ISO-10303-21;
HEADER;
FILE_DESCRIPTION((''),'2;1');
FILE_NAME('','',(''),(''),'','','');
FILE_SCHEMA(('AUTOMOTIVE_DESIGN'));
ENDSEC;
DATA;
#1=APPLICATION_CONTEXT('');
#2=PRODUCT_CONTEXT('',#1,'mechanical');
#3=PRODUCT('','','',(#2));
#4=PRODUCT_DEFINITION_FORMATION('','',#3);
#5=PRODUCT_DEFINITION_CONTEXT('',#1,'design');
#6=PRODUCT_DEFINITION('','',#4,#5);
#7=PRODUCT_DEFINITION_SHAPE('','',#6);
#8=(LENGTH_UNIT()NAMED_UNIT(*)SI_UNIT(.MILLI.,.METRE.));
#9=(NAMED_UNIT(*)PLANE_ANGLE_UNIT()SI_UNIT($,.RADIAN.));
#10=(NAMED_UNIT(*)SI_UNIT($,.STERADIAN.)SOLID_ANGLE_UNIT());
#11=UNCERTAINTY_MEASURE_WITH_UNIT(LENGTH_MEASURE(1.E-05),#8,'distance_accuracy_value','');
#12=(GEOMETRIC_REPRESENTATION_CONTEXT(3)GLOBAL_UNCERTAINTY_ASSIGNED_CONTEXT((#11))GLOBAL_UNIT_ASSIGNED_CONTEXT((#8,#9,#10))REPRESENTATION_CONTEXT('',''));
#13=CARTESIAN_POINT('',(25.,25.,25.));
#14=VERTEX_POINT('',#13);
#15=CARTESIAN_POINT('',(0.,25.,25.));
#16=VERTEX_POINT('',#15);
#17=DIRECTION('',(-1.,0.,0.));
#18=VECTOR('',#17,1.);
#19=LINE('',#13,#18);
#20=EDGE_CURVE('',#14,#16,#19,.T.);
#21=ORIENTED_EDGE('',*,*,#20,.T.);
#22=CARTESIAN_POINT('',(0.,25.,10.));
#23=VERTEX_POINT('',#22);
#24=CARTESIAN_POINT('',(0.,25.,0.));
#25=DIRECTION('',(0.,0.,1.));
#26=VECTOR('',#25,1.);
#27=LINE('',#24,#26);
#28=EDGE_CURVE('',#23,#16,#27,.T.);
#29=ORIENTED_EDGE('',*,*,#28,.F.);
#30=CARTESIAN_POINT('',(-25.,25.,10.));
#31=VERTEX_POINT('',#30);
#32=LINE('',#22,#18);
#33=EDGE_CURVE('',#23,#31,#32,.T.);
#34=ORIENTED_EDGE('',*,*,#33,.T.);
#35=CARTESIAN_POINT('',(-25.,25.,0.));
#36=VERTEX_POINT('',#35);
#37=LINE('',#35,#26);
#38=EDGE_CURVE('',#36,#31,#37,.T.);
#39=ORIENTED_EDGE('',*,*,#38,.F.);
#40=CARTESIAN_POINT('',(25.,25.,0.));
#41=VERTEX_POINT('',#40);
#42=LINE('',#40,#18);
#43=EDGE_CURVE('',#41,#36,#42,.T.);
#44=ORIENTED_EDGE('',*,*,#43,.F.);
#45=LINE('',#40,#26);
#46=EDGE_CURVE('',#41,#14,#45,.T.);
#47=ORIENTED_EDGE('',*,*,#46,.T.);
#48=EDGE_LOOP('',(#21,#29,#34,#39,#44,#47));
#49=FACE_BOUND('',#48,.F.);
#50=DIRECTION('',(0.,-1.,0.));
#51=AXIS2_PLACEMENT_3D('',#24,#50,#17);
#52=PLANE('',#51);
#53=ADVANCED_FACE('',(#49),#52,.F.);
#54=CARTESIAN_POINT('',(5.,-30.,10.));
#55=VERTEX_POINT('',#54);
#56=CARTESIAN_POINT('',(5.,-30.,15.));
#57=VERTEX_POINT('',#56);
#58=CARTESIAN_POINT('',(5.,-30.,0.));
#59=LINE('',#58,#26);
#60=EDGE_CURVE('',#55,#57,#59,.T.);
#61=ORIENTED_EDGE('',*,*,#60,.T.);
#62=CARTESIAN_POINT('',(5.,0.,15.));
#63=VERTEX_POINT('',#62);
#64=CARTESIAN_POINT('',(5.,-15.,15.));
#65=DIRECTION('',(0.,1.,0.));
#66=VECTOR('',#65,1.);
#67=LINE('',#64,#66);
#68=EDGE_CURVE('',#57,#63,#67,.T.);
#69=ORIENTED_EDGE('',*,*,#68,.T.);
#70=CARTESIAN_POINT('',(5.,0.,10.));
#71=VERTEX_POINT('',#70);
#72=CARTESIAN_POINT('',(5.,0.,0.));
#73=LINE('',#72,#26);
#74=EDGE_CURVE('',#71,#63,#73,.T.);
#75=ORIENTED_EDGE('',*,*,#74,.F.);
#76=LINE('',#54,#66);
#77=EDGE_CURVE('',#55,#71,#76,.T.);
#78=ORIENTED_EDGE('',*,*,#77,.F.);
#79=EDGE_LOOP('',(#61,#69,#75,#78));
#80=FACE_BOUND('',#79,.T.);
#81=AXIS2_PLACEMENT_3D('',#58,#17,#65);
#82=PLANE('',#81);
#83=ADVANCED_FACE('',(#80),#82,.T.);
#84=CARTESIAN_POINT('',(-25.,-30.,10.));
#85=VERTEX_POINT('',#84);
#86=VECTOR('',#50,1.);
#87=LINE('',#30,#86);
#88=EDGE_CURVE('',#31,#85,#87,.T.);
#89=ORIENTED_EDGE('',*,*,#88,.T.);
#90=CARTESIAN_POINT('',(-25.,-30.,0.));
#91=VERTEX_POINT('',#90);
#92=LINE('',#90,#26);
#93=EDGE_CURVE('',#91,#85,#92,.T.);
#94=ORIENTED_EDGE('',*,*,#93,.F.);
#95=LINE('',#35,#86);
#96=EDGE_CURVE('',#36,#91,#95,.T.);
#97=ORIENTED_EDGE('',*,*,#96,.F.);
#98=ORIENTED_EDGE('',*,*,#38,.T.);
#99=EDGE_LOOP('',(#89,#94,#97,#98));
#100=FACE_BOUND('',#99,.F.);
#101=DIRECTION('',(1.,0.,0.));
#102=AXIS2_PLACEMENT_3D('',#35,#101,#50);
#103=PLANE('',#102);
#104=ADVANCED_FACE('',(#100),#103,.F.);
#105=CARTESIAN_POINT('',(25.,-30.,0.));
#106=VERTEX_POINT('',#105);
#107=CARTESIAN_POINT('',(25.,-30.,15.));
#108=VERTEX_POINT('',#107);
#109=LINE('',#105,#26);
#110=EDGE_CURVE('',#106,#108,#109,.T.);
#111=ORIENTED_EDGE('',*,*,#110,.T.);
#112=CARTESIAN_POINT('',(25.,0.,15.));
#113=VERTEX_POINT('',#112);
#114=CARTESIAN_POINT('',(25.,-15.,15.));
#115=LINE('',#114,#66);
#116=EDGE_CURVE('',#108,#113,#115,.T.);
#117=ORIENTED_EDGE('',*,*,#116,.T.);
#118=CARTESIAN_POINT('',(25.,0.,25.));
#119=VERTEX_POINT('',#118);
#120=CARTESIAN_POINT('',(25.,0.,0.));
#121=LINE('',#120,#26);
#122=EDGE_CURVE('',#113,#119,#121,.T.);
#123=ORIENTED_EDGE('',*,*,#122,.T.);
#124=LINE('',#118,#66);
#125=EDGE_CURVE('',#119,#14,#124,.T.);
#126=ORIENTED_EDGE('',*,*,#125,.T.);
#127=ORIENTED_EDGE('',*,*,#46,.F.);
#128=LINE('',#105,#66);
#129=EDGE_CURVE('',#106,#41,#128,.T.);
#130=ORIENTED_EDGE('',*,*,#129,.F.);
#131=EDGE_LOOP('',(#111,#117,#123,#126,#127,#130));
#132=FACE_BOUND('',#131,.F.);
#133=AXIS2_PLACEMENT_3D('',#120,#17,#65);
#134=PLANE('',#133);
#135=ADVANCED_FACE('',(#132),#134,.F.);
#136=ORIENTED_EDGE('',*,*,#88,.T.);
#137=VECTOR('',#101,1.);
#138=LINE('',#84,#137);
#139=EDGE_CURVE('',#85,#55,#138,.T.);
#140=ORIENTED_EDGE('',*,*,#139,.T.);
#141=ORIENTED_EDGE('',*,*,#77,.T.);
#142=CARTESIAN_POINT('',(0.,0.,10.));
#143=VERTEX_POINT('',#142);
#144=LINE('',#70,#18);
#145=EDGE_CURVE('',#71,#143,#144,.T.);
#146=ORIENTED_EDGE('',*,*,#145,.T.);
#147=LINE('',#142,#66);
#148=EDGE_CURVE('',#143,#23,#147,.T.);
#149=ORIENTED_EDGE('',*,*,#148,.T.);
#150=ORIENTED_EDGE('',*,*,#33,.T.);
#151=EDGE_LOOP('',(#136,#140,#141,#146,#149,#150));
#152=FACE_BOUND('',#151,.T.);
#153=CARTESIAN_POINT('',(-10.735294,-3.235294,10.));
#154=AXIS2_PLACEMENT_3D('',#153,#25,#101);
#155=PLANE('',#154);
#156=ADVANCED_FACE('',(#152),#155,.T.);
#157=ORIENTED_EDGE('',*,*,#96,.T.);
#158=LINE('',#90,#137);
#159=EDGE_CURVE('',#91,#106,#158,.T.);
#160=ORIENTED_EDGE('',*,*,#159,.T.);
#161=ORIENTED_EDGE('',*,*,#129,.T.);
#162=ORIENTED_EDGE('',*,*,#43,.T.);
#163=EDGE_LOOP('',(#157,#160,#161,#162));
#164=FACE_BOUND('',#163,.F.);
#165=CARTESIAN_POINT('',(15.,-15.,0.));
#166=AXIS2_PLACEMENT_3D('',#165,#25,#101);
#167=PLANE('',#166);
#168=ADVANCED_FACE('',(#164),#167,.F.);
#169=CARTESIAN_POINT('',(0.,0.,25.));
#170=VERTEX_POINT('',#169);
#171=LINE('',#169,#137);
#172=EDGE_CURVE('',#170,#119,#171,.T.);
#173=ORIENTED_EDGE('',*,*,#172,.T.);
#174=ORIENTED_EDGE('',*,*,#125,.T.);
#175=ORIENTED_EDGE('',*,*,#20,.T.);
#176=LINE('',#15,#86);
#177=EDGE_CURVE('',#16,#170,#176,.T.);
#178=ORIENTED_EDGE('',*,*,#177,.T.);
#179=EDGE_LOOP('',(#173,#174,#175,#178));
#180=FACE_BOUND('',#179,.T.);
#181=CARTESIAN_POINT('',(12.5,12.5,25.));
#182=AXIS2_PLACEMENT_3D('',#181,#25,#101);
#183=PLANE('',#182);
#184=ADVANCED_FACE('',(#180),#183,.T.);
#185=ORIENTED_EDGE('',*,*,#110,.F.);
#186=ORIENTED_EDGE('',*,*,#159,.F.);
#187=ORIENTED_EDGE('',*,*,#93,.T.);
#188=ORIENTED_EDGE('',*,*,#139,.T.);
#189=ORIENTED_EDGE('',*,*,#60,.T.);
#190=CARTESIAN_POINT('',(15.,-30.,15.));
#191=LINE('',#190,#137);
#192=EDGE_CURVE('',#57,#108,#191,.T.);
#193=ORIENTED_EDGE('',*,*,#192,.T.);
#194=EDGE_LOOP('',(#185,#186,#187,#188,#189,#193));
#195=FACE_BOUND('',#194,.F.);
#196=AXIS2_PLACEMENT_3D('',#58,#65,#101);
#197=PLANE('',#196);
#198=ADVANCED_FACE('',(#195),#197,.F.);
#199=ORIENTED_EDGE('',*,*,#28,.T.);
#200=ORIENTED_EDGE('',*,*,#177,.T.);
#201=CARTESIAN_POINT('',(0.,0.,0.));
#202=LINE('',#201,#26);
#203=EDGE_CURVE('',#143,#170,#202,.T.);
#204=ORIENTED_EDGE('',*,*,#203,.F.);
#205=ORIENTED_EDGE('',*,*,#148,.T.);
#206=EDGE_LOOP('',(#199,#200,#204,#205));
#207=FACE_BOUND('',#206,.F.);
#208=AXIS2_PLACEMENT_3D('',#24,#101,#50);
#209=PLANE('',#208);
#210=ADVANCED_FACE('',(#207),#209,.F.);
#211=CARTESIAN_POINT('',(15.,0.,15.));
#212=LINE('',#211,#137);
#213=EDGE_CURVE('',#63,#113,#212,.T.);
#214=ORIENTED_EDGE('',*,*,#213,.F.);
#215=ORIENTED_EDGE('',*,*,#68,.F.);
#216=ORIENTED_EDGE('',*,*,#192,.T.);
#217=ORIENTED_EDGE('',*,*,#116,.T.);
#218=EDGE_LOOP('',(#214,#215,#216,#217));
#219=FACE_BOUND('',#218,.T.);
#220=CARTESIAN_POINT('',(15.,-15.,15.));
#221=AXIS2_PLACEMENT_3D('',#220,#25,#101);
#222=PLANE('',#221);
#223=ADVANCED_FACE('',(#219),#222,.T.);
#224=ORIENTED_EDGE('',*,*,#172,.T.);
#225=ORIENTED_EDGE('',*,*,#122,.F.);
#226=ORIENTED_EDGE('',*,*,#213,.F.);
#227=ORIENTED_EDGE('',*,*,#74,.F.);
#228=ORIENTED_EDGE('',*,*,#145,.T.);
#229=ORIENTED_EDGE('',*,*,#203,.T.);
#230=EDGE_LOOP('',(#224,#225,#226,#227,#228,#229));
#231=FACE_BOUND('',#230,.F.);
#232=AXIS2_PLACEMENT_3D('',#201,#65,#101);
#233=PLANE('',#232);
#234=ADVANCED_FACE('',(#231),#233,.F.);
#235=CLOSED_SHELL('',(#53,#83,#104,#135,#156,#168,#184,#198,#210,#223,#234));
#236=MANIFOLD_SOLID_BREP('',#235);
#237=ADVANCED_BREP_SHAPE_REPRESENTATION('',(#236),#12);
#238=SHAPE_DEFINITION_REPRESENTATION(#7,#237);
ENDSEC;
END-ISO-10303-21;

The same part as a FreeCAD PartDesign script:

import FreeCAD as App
import Part
import Sketcher
from FreeCAD import Vector
Q = App.Units.Quantity

doc = App.newDocument("Part")
body = doc.addObject("PartDesign::Body", "Body")

# Sketch on XY plane
sketch1 = body.newObject("Sketcher::SketchObject", "Sketch")
sketch1.AttachmentSupport = (doc.getObject("XY_Plane"), [""])
sketch1.MapMode = "FlatFace"
sketch1.addGeometry([
    Part.LineSegment(Vector(0, 25, 0), Vector(0, 0, 0)),
    Part.LineSegment(Vector(0, 0, 0), Vector(25, 0, 0)),
    Part.LineSegment(Vector(25, 0, 0), Vector(25, 25, 0)),
    Part.LineSegment(Vector(25, 25, 0), Vector(0, 25, 0)),
], False)
sketch1.addConstraint([
    Sketcher.Constraint("Coincident", 0, 2, 1, 1),
    Sketcher.Constraint("Coincident", 1, 2, 2, 1),
    Sketcher.Constraint("Coincident", 2, 2, 3, 1),
    Sketcher.Constraint("Coincident", 3, 2, 0, 1),
    Sketcher.Constraint("Vertical", 0),
    Sketcher.Constraint("Horizontal", 1),
    Sketcher.Constraint("Vertical", 2),
    Sketcher.Constraint("Horizontal", 3),
    Sketcher.Constraint("Coincident", 0, 2, -1, 1),
    Sketcher.Constraint("Equal", 3, 0),
    Sketcher.Constraint("DistanceX", 1, 1, 1, 2, Q("25 mm")),
])
pad1 = body.newObject("PartDesign::Pad", "Pad")
pad1.Profile = sketch1
pad1.Length = 25

# Sketch on XY plane
sketch2 = body.newObject("Sketcher::SketchObject", "Sketch001")
sketch2.AttachmentSupport = (doc.getObject("XY_Plane"), [""])
sketch2.MapMode = "FlatFace"
sketch2.addGeometry([
    Part.LineSegment(Vector(5, 0, 0), Vector(0, 0, 0)),  # 0
    Part.LineSegment(Vector(0, 0, 0), Vector(0, 25, 0)),  # 1
    Part.LineSegment(Vector(0, 25, 0), Vector(-25, 25, 0)),  # 2
    Part.LineSegment(Vector(-25, 25, 0), Vector(-25, -30, 0)),  # 3
    Part.LineSegment(Vector(-25, -30, 0), Vector(5, -30, 0)),  # 4
    Part.LineSegment(Vector(5, -30, 0), Vector(5, 0, 0)),  # 5
], False)
sketch2.addConstraint([
    Sketcher.Constraint("Coincident", 0, 2, 1, 1),
    Sketcher.Constraint("Coincident", 1, 2, 2, 1),
    Sketcher.Constraint("Coincident", 2, 2, 3, 1),
    Sketcher.Constraint("Coincident", 3, 2, 4, 1),
    Sketcher.Constraint("Coincident", 4, 2, 5, 1),
    Sketcher.Constraint("Coincident", 5, 2, 0, 1),
    Sketcher.Constraint("Horizontal", 0),
    Sketcher.Constraint("Vertical", 1),
    Sketcher.Constraint("Horizontal", 2),
    Sketcher.Constraint("Vertical", 3),
    Sketcher.Constraint("Horizontal", 4),
    Sketcher.Constraint("Vertical", 5),
    Sketcher.Constraint("Coincident", 0, 2, -1, 1),
    Sketcher.Constraint("Equal", 2, 1),
    Sketcher.Constraint("Equal", 4, 5),
    Sketcher.Constraint("DistanceX", 0, 2, 0, 1, Q("5 mm")),
    Sketcher.Constraint("DistanceX", 2, 2, 2, 1, Q("25 mm")),
])
pad2 = body.newObject("PartDesign::Pad", "Pad001")
pad2.Profile = sketch2
pad2.Length = 10

# Sketch on XY plane
sketch3 = body.newObject("Sketcher::SketchObject", "Sketch002")
sketch3.AttachmentSupport = (doc.getObject("XY_Plane"), [""])
sketch3.MapMode = "FlatFace"
sketch3.addGeometry([
    Part.LineSegment(Vector(5, 0, 0), Vector(5, -30, 0)),
    Part.LineSegment(Vector(5, -30, 0), Vector(25, -30, 0)),
    Part.LineSegment(Vector(25, -30, 0), Vector(25, 0, 0)),
    Part.LineSegment(Vector(25, 0, 0), Vector(5, 0, 0)),
], False)
sketch3.addConstraint([
    Sketcher.Constraint("Coincident", 0, 2, 1, 1),
    Sketcher.Constraint("Coincident", 1, 2, 2, 1),
    Sketcher.Constraint("Coincident", 2, 2, 3, 1),
    Sketcher.Constraint("Coincident", 3, 2, 0, 1),
    Sketcher.Constraint("Vertical", 0),
    Sketcher.Constraint("Horizontal", 1),
    Sketcher.Constraint("Vertical", 2),
    Sketcher.Constraint("Horizontal", 3),
    Sketcher.Constraint("PointOnObject", 2, 2, -1),
    Sketcher.Constraint("DistanceX", 1, 1, 1, 2, Q("20 mm")),
    Sketcher.Constraint("DistanceY", 0, 2, 0, 1, Q("30 mm")),
    Sketcher.Constraint("DistanceX", -1, 1, 0, 2, Q("5 mm")),
])
pad3 = body.newObject("PartDesign::Pad", "Pad002")
pad3.Profile = sketch3
pad3.Length = 15

doc.recompute()
